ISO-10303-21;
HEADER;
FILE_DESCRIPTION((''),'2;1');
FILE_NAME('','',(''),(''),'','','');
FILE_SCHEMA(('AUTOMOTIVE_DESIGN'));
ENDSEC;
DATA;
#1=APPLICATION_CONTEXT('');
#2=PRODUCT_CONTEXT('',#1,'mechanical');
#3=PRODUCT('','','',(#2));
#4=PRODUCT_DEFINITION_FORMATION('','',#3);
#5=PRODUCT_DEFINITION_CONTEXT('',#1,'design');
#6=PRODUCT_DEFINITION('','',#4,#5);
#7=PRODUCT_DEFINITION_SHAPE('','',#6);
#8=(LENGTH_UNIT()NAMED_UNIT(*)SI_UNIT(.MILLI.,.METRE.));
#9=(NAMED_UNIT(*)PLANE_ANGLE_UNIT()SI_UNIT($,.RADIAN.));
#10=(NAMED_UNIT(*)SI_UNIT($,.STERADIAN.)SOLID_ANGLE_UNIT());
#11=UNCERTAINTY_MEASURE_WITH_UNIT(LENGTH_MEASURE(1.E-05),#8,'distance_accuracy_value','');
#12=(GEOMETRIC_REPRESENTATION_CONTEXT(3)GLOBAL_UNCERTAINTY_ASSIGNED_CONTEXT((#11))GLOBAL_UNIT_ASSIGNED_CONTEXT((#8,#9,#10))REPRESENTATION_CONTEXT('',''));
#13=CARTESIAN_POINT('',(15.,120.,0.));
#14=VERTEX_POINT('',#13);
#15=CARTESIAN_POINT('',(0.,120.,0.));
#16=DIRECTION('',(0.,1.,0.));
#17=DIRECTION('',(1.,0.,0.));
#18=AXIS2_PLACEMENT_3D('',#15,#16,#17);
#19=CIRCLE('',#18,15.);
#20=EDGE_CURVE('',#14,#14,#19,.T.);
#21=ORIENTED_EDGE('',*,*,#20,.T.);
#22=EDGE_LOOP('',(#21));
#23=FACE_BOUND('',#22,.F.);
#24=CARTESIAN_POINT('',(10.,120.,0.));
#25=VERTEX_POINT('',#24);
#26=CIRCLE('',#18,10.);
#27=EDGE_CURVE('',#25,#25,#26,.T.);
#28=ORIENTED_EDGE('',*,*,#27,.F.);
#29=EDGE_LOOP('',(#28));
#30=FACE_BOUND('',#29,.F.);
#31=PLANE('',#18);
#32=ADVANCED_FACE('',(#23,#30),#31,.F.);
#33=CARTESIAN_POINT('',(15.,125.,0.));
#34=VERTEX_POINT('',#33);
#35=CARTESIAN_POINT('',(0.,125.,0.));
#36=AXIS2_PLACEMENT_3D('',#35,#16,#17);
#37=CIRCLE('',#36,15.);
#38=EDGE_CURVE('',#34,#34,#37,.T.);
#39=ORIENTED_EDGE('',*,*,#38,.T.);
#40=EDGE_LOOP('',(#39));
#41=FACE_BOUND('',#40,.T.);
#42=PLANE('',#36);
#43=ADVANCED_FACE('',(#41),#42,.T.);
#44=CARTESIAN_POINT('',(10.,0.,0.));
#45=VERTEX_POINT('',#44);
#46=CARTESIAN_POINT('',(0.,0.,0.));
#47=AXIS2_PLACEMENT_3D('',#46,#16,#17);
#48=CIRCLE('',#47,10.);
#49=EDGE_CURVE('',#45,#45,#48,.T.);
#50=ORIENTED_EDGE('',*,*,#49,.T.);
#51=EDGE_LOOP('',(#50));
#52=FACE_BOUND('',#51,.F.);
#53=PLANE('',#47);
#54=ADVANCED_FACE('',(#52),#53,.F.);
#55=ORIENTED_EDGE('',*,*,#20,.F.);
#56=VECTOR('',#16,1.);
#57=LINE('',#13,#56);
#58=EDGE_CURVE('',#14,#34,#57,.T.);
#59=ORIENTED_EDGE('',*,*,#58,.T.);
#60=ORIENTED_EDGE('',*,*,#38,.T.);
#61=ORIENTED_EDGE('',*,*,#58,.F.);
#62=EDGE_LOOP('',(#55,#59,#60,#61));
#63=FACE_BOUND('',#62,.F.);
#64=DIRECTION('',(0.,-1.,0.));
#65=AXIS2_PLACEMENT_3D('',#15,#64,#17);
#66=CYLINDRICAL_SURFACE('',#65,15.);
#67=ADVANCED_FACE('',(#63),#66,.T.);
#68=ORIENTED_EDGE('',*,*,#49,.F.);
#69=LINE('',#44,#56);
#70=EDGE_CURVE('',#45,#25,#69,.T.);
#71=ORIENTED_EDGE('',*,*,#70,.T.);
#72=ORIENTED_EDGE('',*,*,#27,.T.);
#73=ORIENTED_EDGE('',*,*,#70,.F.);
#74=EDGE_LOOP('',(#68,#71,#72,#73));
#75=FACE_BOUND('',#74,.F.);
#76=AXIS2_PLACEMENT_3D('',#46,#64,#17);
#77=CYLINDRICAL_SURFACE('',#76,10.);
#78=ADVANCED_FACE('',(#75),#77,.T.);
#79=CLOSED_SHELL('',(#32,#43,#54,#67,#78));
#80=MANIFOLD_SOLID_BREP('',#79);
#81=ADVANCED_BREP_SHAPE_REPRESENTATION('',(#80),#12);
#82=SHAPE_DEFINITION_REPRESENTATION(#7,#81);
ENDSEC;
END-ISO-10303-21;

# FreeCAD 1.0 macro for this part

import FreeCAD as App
import Part
import Sketcher
from FreeCAD import Vector
Q = App.Units.Quantity

doc = App.newDocument("Part")
body = doc.addObject("PartDesign::Body", "Body")

# Sketch on XZ plane
sketch1 = body.newObject("Sketcher::SketchObject", "Sketch")
sketch1.AttachmentSupport = (doc.getObject("XZ_Plane"), [""])
sketch1.MapMode = "FlatFace"
sketch1.addGeometry(Part.Circle(Vector(0, 0, 0), Vector(0, 0, 1), 10), False)
sketch1.addConstraint([
    Sketcher.Constraint("Coincident", 0, 3, -1, 1),
    Sketcher.Constraint("Diameter", 0, Q("20 mm")),
])
pad1 = body.newObject("PartDesign::Pad", "Pad")
pad1.Profile = sketch1
pad1.Length = 120
pad1.Reversed = True

# Sketch on XZ plane
sketch2 = body.newObject("Sketcher::SketchObject", "Sketch001")
sketch2.AttachmentSupport = (doc.getObject("XZ_Plane"), [""])
sketch2.MapMode = "FlatFace"
sketch2.AttachmentOffset = App.Placement(Vector(0, 0, -120), App.Rotation())
sketch2.addGeometry(Part.Circle(Vector(0, 0, 0), Vector(0, 0, 1), 15), False)
sketch2.addConstraint([
    Sketcher.Constraint("Coincident", 0, 3, -1, 1),
    Sketcher.Constraint("Diameter", 0, Q("30 mm")),
])
pad2 = body.newObject("PartDesign::Pad", "Pad001")
pad2.Profile = sketch2
pad2.Length = 5
pad2.Reversed = True

doc.recompute()
